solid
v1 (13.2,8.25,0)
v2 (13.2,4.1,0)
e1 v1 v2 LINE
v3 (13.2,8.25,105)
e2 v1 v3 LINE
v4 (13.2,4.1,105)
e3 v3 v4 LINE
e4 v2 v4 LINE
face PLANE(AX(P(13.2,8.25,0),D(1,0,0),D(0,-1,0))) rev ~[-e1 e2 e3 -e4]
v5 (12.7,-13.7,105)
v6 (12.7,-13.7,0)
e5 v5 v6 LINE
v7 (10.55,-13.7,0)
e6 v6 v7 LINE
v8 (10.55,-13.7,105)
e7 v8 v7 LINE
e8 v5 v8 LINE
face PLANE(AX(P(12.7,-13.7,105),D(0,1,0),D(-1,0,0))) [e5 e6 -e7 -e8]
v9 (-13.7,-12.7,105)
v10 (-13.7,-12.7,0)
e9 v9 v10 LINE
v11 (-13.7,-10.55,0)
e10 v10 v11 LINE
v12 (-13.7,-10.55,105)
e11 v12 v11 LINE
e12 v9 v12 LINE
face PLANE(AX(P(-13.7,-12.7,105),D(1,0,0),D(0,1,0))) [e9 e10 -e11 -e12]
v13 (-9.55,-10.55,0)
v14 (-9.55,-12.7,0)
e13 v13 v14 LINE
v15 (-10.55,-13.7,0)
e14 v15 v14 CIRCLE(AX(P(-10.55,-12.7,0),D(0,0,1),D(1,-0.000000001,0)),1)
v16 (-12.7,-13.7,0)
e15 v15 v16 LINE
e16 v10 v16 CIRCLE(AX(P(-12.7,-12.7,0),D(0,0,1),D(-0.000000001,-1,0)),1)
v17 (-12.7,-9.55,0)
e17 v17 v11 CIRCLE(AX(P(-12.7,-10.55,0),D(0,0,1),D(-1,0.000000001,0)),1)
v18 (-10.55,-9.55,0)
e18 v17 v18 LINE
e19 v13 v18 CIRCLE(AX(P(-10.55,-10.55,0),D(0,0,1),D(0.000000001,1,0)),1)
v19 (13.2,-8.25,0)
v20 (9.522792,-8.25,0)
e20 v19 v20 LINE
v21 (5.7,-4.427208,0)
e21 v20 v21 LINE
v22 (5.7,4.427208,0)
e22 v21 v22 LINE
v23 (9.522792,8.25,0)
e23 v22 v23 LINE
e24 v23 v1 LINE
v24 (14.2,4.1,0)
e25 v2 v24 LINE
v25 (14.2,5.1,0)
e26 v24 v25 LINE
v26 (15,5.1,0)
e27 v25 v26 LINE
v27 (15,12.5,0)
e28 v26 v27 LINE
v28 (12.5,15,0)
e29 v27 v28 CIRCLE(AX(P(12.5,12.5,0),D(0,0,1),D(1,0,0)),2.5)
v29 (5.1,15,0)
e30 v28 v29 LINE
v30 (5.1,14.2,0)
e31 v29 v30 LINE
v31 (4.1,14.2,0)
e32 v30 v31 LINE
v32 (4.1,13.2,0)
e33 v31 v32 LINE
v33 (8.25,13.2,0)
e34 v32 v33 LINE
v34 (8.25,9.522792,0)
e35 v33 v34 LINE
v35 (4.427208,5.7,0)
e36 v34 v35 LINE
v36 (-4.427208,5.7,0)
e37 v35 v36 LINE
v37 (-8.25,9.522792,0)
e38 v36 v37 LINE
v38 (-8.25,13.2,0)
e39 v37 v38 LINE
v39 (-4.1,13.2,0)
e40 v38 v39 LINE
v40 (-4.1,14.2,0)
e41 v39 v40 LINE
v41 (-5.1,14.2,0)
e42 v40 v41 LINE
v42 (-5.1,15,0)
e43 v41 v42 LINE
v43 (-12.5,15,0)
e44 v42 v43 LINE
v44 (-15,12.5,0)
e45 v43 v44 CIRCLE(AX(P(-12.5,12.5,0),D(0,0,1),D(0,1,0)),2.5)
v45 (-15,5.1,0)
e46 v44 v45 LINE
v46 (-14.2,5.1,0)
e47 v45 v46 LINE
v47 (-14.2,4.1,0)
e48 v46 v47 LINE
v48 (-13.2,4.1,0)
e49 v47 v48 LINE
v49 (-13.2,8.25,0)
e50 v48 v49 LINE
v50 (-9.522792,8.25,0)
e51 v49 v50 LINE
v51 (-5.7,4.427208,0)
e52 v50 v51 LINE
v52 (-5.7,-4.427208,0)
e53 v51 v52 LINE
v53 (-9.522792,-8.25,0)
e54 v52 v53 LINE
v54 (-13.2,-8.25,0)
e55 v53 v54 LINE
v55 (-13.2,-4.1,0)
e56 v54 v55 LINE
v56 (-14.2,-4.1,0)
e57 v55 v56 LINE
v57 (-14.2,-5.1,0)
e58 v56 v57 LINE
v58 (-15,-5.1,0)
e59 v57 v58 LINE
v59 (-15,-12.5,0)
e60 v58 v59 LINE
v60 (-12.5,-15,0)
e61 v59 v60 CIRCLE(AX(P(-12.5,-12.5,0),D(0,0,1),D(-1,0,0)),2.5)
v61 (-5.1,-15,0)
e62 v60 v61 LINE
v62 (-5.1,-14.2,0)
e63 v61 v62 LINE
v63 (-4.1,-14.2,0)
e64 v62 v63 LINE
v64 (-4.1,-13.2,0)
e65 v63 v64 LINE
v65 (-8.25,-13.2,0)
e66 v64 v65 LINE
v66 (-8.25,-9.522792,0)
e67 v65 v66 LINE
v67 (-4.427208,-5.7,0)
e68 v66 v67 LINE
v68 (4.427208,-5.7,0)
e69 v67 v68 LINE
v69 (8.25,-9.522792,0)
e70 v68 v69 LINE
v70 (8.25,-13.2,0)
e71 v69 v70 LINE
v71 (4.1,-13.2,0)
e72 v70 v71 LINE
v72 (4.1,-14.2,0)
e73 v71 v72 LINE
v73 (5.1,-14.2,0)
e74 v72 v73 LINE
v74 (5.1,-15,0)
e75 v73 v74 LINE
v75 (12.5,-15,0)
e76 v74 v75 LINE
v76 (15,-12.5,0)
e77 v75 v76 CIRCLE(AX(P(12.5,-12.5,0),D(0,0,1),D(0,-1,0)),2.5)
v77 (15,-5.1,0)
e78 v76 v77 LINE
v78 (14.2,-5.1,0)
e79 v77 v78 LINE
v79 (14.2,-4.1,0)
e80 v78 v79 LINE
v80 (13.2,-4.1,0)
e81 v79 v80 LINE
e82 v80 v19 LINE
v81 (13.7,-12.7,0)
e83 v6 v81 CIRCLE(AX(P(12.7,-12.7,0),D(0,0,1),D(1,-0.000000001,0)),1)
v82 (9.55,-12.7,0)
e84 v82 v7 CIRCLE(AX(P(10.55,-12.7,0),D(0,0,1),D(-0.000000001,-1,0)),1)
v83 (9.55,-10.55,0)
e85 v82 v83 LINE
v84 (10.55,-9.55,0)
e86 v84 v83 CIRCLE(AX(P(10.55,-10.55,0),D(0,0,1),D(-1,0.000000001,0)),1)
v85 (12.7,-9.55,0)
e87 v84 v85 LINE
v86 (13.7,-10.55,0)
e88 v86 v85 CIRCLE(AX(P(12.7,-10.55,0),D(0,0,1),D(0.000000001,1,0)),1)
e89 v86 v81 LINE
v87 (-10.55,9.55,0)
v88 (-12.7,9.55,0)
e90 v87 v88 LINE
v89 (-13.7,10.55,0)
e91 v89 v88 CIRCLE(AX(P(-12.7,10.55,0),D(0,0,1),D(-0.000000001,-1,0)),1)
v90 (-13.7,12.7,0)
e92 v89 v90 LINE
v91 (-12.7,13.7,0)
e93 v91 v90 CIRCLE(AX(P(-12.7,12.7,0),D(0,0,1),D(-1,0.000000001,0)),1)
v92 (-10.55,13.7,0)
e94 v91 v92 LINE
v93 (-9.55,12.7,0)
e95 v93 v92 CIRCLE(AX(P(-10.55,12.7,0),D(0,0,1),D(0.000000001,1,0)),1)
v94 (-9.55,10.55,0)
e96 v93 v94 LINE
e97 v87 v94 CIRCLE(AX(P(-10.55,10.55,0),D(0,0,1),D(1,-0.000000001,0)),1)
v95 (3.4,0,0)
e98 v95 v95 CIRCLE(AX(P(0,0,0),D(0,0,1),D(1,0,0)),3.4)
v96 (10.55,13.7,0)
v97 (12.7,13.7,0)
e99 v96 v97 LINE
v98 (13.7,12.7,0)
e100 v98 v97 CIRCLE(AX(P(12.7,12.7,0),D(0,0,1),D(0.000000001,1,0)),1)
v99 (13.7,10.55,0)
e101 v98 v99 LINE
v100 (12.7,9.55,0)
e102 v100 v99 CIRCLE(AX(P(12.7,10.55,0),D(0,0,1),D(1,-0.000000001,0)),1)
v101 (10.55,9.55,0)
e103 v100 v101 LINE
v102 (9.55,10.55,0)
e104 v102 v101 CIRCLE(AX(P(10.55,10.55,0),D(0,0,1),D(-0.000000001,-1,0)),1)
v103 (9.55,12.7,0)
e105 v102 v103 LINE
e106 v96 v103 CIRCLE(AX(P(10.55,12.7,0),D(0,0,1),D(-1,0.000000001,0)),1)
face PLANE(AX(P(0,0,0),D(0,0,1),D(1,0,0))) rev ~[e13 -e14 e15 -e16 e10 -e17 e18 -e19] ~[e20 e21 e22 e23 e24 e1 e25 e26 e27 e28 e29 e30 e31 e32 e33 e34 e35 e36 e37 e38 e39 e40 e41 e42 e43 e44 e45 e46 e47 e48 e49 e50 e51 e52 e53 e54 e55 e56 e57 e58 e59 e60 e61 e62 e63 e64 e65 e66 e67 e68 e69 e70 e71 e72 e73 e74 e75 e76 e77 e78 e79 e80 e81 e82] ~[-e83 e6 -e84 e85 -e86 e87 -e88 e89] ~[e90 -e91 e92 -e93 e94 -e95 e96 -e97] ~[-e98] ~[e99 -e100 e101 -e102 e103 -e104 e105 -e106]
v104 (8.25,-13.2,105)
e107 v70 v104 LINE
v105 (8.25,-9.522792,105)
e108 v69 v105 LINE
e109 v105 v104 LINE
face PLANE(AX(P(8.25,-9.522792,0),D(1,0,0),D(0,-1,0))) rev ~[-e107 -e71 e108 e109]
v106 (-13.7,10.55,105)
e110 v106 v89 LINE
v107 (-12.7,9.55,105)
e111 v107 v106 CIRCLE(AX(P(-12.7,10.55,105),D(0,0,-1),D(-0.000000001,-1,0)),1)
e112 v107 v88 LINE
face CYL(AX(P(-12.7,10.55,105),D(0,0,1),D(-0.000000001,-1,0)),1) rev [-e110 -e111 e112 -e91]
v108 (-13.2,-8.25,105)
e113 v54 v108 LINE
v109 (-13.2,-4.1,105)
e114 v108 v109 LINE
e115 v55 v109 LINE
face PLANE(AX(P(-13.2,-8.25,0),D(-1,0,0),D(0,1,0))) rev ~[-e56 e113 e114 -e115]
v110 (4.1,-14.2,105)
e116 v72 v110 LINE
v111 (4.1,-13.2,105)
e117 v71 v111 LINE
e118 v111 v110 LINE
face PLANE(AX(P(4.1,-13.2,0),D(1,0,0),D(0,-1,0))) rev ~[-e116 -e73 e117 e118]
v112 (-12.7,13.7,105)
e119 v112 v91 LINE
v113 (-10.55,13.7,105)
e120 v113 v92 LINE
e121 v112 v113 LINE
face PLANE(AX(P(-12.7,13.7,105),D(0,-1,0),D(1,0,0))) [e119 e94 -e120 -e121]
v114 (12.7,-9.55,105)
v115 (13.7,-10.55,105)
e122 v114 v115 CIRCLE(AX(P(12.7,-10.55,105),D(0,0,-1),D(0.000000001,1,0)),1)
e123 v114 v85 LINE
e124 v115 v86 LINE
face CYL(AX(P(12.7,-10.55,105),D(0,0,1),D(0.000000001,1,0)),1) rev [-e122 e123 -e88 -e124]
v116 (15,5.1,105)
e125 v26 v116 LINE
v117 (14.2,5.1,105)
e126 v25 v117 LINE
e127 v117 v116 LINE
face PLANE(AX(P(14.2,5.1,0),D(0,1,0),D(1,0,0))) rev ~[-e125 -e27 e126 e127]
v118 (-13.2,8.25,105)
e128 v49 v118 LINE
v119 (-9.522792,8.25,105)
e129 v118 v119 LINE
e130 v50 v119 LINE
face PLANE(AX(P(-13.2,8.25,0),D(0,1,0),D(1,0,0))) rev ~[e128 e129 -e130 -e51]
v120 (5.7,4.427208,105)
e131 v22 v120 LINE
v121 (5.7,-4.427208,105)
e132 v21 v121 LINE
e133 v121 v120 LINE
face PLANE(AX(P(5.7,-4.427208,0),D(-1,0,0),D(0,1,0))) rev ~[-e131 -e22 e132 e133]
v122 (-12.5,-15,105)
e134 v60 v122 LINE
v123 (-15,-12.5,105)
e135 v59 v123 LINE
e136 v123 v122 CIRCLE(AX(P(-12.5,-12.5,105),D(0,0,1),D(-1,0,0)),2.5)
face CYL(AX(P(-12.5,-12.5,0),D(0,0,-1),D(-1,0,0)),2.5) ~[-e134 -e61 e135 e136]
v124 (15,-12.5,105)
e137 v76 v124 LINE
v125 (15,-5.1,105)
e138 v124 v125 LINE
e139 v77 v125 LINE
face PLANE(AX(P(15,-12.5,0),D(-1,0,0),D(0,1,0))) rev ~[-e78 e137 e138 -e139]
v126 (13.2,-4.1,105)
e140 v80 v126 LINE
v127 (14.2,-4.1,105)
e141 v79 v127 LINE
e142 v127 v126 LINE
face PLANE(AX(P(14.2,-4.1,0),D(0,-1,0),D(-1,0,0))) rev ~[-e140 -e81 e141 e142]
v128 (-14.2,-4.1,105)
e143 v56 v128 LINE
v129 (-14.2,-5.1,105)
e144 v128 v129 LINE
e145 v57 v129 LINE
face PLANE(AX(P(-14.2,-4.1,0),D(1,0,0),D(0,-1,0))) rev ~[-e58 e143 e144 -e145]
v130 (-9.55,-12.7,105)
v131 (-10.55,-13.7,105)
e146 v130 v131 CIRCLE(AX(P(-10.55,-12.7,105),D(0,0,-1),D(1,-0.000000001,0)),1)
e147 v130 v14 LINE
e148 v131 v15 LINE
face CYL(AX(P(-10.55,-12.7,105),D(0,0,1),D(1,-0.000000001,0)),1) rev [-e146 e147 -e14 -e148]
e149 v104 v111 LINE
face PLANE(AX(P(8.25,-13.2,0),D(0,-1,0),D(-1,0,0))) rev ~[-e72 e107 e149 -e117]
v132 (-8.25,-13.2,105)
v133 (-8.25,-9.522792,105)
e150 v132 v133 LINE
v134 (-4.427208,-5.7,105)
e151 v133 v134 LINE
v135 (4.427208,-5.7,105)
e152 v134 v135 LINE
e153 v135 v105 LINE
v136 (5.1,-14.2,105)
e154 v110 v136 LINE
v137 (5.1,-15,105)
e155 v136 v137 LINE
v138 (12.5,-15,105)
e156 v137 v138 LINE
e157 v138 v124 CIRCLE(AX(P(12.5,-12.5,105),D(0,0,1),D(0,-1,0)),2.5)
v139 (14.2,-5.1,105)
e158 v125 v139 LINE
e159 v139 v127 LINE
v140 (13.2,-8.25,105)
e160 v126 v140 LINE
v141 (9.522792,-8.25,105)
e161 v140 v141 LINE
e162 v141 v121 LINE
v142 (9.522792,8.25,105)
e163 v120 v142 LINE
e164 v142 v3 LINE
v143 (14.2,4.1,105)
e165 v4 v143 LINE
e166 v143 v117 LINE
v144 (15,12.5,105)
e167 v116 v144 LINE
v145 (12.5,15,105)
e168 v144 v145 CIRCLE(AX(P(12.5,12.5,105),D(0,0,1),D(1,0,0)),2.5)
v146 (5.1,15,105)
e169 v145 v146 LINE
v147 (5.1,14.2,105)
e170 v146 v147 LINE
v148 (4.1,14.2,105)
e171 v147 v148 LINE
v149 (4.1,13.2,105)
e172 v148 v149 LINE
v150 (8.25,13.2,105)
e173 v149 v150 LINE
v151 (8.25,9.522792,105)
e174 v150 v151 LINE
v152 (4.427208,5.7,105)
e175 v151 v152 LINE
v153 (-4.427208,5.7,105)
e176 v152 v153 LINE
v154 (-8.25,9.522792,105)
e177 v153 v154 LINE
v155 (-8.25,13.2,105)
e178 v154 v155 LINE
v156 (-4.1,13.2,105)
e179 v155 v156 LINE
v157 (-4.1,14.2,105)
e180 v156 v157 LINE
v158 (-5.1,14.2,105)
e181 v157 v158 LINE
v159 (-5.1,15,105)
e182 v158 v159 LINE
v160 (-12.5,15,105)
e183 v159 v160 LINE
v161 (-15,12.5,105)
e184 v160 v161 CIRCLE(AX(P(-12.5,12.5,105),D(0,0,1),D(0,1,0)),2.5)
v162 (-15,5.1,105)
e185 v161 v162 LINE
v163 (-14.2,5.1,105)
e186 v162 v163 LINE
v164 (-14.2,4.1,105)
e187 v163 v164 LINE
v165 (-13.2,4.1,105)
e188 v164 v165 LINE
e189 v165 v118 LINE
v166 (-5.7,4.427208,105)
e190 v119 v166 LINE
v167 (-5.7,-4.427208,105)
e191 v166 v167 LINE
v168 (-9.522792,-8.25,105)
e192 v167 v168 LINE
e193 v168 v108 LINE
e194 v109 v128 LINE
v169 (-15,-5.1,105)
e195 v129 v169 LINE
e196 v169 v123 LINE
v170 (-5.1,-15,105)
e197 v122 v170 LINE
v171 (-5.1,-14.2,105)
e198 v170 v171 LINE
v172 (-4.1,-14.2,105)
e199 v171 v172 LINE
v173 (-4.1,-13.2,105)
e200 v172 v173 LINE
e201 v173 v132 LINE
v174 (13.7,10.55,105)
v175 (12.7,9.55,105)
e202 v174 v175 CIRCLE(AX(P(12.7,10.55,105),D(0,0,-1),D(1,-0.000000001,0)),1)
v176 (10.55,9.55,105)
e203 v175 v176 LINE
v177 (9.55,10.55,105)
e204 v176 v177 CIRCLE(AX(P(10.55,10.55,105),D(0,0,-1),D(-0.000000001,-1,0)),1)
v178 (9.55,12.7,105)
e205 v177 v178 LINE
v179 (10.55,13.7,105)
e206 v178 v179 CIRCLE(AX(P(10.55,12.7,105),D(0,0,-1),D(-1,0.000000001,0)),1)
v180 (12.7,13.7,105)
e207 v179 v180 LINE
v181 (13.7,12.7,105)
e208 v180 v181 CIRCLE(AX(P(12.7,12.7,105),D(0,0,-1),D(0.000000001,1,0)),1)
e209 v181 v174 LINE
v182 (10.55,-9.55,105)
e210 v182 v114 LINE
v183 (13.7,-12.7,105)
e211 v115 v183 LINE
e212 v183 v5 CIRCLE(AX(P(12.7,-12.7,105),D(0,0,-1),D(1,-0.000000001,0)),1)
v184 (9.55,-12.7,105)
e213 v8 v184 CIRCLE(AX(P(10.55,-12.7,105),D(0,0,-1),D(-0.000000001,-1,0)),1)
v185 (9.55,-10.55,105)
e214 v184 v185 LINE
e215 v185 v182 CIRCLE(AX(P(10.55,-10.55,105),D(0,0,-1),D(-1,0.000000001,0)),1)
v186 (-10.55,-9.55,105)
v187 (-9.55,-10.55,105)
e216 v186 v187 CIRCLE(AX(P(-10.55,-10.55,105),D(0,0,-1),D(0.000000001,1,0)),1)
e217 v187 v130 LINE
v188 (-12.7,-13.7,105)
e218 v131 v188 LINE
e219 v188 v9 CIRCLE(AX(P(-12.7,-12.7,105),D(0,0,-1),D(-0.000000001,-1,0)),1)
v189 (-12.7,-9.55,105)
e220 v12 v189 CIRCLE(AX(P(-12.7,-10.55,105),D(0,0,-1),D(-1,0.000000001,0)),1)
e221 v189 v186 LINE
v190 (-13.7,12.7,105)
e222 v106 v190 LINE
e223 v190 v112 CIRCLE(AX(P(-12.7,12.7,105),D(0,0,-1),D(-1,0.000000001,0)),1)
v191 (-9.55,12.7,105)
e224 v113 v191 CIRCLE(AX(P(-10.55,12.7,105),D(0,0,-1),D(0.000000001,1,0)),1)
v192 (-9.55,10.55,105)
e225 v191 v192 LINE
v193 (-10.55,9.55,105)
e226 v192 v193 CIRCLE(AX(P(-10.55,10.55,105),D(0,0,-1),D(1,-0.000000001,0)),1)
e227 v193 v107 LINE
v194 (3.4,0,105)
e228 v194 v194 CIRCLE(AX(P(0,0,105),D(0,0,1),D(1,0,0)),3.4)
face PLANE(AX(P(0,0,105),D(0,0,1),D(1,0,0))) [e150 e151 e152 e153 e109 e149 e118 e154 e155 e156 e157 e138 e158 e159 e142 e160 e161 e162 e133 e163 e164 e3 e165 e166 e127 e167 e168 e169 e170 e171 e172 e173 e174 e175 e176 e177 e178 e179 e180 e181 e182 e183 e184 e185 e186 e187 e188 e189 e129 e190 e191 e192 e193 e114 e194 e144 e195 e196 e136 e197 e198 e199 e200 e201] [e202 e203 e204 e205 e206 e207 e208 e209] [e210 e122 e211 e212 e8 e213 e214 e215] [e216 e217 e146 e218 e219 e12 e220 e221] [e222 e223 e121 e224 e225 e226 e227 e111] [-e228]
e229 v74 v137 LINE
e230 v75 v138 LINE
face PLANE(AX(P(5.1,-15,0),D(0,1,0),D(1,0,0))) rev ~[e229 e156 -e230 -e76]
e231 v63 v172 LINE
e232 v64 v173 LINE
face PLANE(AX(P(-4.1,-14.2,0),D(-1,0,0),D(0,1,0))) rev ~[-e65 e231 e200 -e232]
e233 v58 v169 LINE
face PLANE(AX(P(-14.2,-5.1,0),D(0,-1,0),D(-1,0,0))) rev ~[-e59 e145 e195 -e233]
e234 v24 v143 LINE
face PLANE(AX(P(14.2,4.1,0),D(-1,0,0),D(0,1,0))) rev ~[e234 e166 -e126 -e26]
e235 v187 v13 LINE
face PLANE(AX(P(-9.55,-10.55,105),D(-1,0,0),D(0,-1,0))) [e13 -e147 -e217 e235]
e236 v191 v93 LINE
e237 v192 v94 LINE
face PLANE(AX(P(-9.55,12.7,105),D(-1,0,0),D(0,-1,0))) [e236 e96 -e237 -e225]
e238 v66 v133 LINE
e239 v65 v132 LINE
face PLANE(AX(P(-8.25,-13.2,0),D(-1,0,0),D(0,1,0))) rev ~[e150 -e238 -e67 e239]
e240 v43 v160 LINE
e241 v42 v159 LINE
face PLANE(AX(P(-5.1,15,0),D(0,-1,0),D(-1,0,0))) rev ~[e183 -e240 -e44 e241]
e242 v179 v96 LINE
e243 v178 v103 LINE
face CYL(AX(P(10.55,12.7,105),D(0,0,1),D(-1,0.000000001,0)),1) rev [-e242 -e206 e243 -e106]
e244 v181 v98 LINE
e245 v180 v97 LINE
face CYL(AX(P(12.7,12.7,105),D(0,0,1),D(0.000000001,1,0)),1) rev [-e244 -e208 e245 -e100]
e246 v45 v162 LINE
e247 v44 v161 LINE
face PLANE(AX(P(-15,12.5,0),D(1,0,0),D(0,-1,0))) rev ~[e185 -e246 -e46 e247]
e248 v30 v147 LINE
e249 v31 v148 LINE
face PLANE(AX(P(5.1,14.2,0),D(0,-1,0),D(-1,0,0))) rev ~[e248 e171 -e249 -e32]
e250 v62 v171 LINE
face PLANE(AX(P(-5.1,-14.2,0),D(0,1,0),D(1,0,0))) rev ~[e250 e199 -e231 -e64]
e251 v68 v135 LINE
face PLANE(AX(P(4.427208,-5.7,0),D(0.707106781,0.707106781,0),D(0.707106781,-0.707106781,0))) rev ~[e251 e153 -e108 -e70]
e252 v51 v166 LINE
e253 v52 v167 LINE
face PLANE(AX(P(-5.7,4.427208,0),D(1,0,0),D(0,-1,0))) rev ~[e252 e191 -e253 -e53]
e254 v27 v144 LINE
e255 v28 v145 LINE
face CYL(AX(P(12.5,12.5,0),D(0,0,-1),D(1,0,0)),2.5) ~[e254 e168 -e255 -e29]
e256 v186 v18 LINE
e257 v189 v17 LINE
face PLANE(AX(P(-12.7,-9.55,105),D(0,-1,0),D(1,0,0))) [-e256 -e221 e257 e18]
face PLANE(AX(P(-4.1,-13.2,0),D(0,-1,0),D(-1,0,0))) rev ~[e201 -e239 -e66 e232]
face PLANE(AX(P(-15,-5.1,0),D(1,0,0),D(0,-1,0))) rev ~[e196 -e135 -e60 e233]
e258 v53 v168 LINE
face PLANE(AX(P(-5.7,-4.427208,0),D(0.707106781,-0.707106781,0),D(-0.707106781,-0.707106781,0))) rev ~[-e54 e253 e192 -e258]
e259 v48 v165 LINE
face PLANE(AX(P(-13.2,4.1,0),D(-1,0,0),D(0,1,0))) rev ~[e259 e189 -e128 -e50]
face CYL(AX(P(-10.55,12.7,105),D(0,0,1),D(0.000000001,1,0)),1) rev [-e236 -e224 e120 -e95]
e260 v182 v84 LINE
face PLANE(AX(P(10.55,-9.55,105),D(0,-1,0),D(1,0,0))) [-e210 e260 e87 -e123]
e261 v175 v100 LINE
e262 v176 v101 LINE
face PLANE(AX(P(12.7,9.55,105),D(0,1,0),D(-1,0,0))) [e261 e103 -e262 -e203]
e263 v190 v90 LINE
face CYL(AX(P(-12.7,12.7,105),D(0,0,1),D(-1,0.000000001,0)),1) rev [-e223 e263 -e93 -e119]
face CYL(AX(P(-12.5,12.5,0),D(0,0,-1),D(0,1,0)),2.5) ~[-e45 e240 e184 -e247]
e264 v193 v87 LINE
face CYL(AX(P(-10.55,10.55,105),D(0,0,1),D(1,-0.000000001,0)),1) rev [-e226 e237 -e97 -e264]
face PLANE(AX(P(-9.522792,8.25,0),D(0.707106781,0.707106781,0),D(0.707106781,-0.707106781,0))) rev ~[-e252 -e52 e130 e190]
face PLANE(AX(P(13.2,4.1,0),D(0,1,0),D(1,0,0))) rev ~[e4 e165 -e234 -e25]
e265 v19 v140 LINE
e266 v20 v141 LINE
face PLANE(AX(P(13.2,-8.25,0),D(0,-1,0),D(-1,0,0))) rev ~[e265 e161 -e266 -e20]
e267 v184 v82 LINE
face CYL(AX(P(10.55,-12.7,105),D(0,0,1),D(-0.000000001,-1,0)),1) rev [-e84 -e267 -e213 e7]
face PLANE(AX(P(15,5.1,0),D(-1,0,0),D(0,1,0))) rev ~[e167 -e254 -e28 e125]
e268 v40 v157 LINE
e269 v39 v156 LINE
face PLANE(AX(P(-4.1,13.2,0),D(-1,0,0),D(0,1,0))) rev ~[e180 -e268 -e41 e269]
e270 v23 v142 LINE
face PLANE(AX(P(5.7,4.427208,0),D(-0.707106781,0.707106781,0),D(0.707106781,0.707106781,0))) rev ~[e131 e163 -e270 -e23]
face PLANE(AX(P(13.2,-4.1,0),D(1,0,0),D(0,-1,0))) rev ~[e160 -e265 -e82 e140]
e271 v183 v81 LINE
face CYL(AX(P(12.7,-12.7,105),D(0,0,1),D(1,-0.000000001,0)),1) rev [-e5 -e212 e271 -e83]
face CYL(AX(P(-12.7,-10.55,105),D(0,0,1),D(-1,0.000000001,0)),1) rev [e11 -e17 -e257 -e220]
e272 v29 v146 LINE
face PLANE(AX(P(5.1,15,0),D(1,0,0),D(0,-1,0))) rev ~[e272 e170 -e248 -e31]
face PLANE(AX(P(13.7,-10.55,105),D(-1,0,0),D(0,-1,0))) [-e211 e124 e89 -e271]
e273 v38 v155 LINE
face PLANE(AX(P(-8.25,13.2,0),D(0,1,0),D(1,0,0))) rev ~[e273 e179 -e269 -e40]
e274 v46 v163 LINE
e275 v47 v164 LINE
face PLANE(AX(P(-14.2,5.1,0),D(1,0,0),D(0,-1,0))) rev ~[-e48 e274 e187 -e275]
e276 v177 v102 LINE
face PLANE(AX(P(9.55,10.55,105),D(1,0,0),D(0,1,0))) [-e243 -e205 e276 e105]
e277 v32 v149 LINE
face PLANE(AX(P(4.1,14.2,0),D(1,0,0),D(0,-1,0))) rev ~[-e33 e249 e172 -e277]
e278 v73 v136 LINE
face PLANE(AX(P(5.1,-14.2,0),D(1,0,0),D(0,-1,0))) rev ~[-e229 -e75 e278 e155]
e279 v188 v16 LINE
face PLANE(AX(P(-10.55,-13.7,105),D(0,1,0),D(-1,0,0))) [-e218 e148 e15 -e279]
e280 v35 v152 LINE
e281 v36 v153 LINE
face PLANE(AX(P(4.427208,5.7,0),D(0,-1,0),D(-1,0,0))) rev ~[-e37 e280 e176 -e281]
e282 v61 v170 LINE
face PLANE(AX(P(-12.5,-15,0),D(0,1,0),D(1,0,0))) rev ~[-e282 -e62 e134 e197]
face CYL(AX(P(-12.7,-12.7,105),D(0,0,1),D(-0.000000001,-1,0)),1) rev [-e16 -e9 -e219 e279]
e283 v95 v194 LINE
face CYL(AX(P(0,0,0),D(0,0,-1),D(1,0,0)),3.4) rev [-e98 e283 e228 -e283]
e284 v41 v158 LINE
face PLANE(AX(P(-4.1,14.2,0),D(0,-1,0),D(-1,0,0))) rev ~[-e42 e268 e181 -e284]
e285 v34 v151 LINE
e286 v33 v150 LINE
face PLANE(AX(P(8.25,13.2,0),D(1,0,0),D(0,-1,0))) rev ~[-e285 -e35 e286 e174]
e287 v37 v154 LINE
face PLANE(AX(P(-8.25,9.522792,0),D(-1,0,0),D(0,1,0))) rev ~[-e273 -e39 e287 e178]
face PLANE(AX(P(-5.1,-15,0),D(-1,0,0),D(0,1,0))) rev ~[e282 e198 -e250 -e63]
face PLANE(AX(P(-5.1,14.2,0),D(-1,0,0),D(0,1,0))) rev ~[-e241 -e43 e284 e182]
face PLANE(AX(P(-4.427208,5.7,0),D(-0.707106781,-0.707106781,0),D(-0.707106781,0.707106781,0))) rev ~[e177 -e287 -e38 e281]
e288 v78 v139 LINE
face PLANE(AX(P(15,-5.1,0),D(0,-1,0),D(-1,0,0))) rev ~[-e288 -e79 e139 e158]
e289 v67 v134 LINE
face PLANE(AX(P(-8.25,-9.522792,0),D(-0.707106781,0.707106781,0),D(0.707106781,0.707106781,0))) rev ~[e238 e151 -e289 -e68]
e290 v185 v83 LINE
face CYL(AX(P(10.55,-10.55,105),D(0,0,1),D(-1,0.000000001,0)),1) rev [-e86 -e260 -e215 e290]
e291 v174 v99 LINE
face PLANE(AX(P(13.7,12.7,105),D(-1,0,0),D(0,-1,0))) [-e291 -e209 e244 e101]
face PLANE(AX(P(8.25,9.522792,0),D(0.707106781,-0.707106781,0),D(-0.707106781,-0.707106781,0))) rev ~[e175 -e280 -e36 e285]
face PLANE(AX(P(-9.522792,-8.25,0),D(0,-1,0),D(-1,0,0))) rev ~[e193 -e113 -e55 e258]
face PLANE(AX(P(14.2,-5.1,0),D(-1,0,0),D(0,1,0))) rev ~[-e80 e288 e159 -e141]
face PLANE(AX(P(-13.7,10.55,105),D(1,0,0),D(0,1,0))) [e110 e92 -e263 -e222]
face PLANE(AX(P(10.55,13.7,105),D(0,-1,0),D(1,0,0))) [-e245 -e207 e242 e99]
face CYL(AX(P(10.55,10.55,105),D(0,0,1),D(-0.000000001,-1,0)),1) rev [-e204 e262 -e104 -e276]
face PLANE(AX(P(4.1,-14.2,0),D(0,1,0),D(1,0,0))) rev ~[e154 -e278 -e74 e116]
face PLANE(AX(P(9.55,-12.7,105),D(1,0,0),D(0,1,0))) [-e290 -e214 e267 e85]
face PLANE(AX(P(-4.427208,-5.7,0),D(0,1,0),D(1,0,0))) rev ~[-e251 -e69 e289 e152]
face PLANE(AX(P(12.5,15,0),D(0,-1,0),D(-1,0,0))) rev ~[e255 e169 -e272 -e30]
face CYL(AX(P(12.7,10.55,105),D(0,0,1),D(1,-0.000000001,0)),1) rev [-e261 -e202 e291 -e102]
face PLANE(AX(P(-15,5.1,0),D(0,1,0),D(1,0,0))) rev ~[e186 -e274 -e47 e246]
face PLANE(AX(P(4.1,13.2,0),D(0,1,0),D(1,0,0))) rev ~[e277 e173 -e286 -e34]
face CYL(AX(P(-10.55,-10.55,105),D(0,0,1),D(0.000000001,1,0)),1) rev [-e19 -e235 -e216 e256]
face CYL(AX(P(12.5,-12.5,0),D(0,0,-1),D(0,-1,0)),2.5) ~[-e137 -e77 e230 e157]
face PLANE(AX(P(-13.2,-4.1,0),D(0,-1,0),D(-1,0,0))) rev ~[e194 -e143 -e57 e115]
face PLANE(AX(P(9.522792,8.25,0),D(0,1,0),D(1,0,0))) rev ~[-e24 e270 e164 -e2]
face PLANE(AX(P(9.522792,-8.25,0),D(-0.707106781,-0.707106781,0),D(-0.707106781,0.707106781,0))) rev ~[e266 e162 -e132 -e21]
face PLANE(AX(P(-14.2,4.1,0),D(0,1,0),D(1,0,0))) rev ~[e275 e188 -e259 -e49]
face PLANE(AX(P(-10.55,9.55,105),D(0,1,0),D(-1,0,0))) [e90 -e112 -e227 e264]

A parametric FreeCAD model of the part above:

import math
import FreeCAD as App
import Part
import Sketcher
from FreeCAD import Vector
Q = App.Units.Quantity

doc = App.newDocument("Part")
params = doc.addObject("Spreadsheet::Sheet", "Params")
for row, (alias, value) in enumerate([
    ("sketch1_diameter", "6.8 mm"),
    ("sketch1_radius", "2.5 mm"),
    ("sketch1_width", "1 mm"),
    ("sketch1_width2", "7.4 mm"),
    ("sketch1_width3", "0.8 mm"),
    ("pad1_length", "105 mm"),
    ("sketch2_radius", "1 mm"),
    ("sketch2_width", "2.15 mm"),
], start=1):
    params.set(f"A{row}", alias)
    params.set(f"B{row}", "=" + value)
    params.setAlias(f"B{row}", alias)

body = doc.addObject("PartDesign::Body", "Body")

sketch1 = body.newObject("Sketcher::SketchObject", "Sketch")
sketch1.AttachmentSupport = (doc.getObject("XY_Plane"), [""])
sketch1.MapMode = "FlatFace"
sketch1.addGeometry([
    Part.LineSegment(Vector(-5.1, 14.2, 0), Vector(-5.1, 15, 0)),
    Part.LineSegment(Vector(-5.1, 15, 0), Vector(-12.5, 15, 0)),
    Part.ArcOfCircle(Part.Circle(Vector(-12.5, 12.5, 0), Vector(0, 0, 1), 2.5), math.radians(90), math.radians(180)),
    Part.LineSegment(Vector(-15, 12.5, 0), Vector(-15, 5.1, 0)),
    Part.LineSegment(Vector(-15, 5.1, 0), Vector(-14.2, 5.1, 0)),
    Part.LineSegment(Vector(-14.2, 5.1, 0), Vector(-14.2, 4.1, 0)),
    Part.LineSegment(Vector(-14.2, 4.1, 0), Vector(-13.2, 4.1, 0)),
    Part.LineSegment(Vector(-13.2, 4.1, 0), Vector(-13.2, 8.25, 0)),
    Part.LineSegment(Vector(-13.2, 8.25, 0), Vector(-9.522792, 8.25, 0)),
    Part.LineSegment(Vector(-9.522792, 8.25, 0), Vector(-5.7, 4.427208, 0)),
    Part.LineSegment(Vector(-5.7, 4.427208, 0), Vector(-5.7, -4.427208, 0)),
    Part.LineSegment(Vector(-5.7, -4.427208, 0), Vector(-9.522792, -8.25, 0)),
    Part.LineSegment(Vector(-9.522792, -8.25, 0), Vector(-13.2, -8.25, 0)),
    Part.LineSegment(Vector(-13.2, -8.25, 0), Vector(-13.2, -4.1, 0)),
    Part.LineSegment(Vector(-13.2, -4.1, 0), Vector(-14.2, -4.1, 0)),
    Part.LineSegment(Vector(-14.2, -4.1, 0), Vector(-14.2, -5.1, 0)),
    Part.LineSegment(Vector(-14.2, -5.1, 0), Vector(-15, -5.1, 0)),
    Part.LineSegment(Vector(-15, -5.1, 0), Vector(-15, -12.5, 0)),
    Part.ArcOfCircle(Part.Circle(Vector(-12.5, -12.5, 0), Vector(0, 0, 1), 2.5), math.radians(180), math.radians(270)),
    Part.LineSegment(Vector(-12.5, -15, 0), Vector(-5.1, -15, 0)),
    Part.LineSegment(Vector(-5.1, -15, 0), Vector(-5.1, -14.2, 0)),
    Part.LineSegment(Vector(-5.1, -14.2, 0), Vector(-4.1, -14.2, 0)),
    Part.LineSegment(Vector(-4.1, -14.2, 0), Vector(-4.1, -13.2, 0)),
    Part.LineSegment(Vector(-4.1, -13.2, 0), Vector(-8.25, -13.2, 0)),
    Part.LineSegment(Vector(-8.25, -13.2, 0), Vector(-8.25, -9.522792, 0)),
    Part.LineSegment(Vector(-8.25, -9.522792, 0), Vector(-4.427208, -5.7, 0)),
    Part.LineSegment(Vector(-4.427208, -5.7, 0), Vector(4.427208, -5.7, 0)),
    Part.LineSegment(Vector(4.427208, -5.7, 0), Vector(8.25, -9.522792, 0)),
    Part.LineSegment(Vector(8.25, -9.522792, 0), Vector(8.25, -13.2, 0)),
    Part.LineSegment(Vector(8.25, -13.2, 0), Vector(4.1, -13.2, 0)),
    Part.LineSegment(Vector(4.1, -13.2, 0), Vector(4.1, -14.2, 0)),
    Part.LineSegment(Vector(4.1, -14.2, 0), Vector(5.1, -14.2, 0)),
    Part.LineSegment(Vector(5.1, -14.2, 0), Vector(5.1, -15, 0)),
    Part.LineSegment(Vector(5.1, -15, 0), Vector(12.5, -15, 0)),
    Part.ArcOfCircle(Part.Circle(Vector(12.5, -12.5, 0), Vector(0, 0, 1), 2.5), math.radians(-90), math.radians(0)),
    Part.LineSegment(Vector(15, -12.5, 0), Vector(15, -5.1, 0)),
    Part.LineSegment(Vector(15, -5.1, 0), Vector(14.2, -5.1, 0)),
    Part.LineSegment(Vector(14.2, -5.1, 0), Vector(14.2, -4.1, 0)),
    Part.LineSegment(Vector(14.2, -4.1, 0), Vector(13.2, -4.1, 0)),
    Part.LineSegment(Vector(13.2, -4.1, 0), Vector(13.2, -8.25, 0)),
    Part.LineSegment(Vector(13.2, -8.25, 0), Vector(9.522792, -8.25, 0)),
    Part.LineSegment(Vector(9.522792, -8.25, 0), Vector(5.7, -4.427208, 0)),
    Part.LineSegment(Vector(5.7, -4.427208, 0), Vector(5.7, 4.427208, 0)),
    Part.LineSegment(Vector(5.7, 4.427208, 0), Vector(9.522792, 8.25, 0)),
    Part.LineSegment(Vector(9.522792, 8.25, 0), Vector(13.2, 8.25, 0)),
    Part.LineSegment(Vector(13.2, 8.25, 0), Vector(13.2, 4.1, 0)),
    Part.LineSegment(Vector(13.2, 4.1, 0), Vector(14.2, 4.1, 0)),
    Part.LineSegment(Vector(14.2, 4.1, 0), Vector(14.2, 5.1, 0)),
    Part.LineSegment(Vector(14.2, 5.1, 0), Vector(15, 5.1, 0)),
    Part.LineSegment(Vector(15, 5.1, 0), Vector(15, 12.5, 0)),
    Part.ArcOfCircle(Part.Circle(Vector(12.5, 12.5, 0), Vector(0, 0, 1), 2.5), math.radians(0), math.radians(90)),
    Part.LineSegment(Vector(12.5, 15, 0), Vector(5.1, 15, 0)),
    Part.LineSegment(Vector(5.1, 15, 0), Vector(5.1, 14.2, 0)),
    Part.LineSegment(Vector(5.1, 14.2, 0), Vector(4.1, 14.2, 0)),
    Part.LineSegment(Vector(4.1, 14.2, 0), Vector(4.1, 13.2, 0)),
    Part.LineSegment(Vector(4.1, 13.2, 0), Vector(8.25, 13.2, 0)),
    Part.LineSegment(Vector(8.25, 13.2, 0), Vector(8.25, 9.522792, 0)),
    Part.LineSegment(Vector(8.25, 9.522792, 0), Vector(4.427208, 5.7, 0)),
    Part.LineSegment(Vector(4.427208, 5.7, 0), Vector(-4.427208, 5.7, 0)),
    Part.LineSegment(Vector(-4.427208, 5.7, 0), Vector(-8.25, 9.522792, 0)),
    Part.LineSegment(Vector(-8.25, 9.522792, 0), Vector(-8.25, 13.2, 0)),
    Part.LineSegment(Vector(-8.25, 13.2, 0), Vector(-4.1, 13.2, 0)),
    Part.LineSegment(Vector(-4.1, 13.2, 0), Vector(-4.1, 14.2, 0)),
    Part.LineSegment(Vector(-4.1, 14.2, 0), Vector(-5.1, 14.2, 0)),
    Part.Circle(Vector(0, 0, 0), Vector(0, 0, 1), 3.4),
], False)
sketch1.addConstraint([
    Sketcher.Constraint("Coincident", 0, 2, 1, 1),
    Sketcher.Constraint("Tangent", 1, 2, 2, 1),
    Sketcher.Constraint("Tangent", 2, 2, 3, 1),
    Sketcher.Constraint("Coincident", 3, 2, 4, 1),
    Sketcher.Constraint("Coincident", 4, 2, 5, 1),
    Sketcher.Constraint("Coincident", 5, 2, 6, 1),
    Sketcher.Constraint("Coincident", 6, 2, 7, 1),
    Sketcher.Constraint("Coincident", 7, 2, 8, 1),
    Sketcher.Constraint("Coincident", 8, 2, 9, 1),
    Sketcher.Constraint("Coincident", 9, 2, 10, 1),
    Sketcher.Constraint("Coincident", 10, 2, 11, 1),
    Sketcher.Constraint("Coincident", 11, 2, 12, 1),
    Sketcher.Constraint("Coincident", 12, 2, 13, 1),
    Sketcher.Constraint("Coincident", 13, 2, 14, 1),
    Sketcher.Constraint("Coincident", 14, 2, 15, 1),
    Sketcher.Constraint("Coincident", 15, 2, 16, 1),
    Sketcher.Constraint("Coincident", 16, 2, 17, 1),
    Sketcher.Constraint("Tangent", 17, 2, 18, 1),
    Sketcher.Constraint("Tangent", 18, 2, 19, 1),
    Sketcher.Constraint("Coincident", 19, 2, 20, 1),
    Sketcher.Constraint("Coincident", 20, 2, 21, 1),
    Sketcher.Constraint("Coincident", 21, 2, 22, 1),
    Sketcher.Constraint("Coincident", 22, 2, 23, 1),
    Sketcher.Constraint("Coincident", 23, 2, 24, 1),
    Sketcher.Constraint("Coincident", 24, 2, 25, 1),
    Sketcher.Constraint("Coincident", 25, 2, 26, 1),
    Sketcher.Constraint("Coincident", 26, 2, 27, 1),
    Sketcher.Constraint("Coincident", 27, 2, 28, 1),
    Sketcher.Constraint("Coincident", 28, 2, 29, 1),
    Sketcher.Constraint("Coincident", 29, 2, 30, 1),
    Sketcher.Constraint("Coincident", 30, 2, 31, 1),
    Sketcher.Constraint("Coincident", 31, 2, 32, 1),
    Sketcher.Constraint("Coincident", 32, 2, 33, 1),
    Sketcher.Constraint("Tangent", 33, 2, 34, 1),
    Sketcher.Constraint("Tangent", 34, 2, 35, 1),
    Sketcher.Constraint("Coincident", 35, 2, 36, 1),
    Sketcher.Constraint("Coincident", 36, 2, 37, 1),
    Sketcher.Constraint("Coincident", 37, 2, 38, 1),
    Sketcher.Constraint("Coincident", 38, 2, 39, 1),
    Sketcher.Constraint("Coincident", 39, 2, 40, 1),
    Sketcher.Constraint("Coincident", 40, 2, 41, 1),
    Sketcher.Constraint("Coincident", 41, 2, 42, 1),
    Sketcher.Constraint("Coincident", 42, 2, 43, 1),
    Sketcher.Constraint("Coincident", 43, 2, 44, 1),
    Sketcher.Constraint("Coincident", 44, 2, 45, 1),
    Sketcher.Constraint("Coincident", 45, 2, 46, 1),
    Sketcher.Constraint("Coincident", 46, 2, 47, 1),
    Sketcher.Constraint("Coincident", 47, 2, 48, 1),
    Sketcher.Constraint("Coincident", 48, 2, 49, 1),
    Sketcher.Constraint("Tangent", 49, 2, 50, 1),
    Sketcher.Constraint("Tangent", 50, 2, 51, 1),
    Sketcher.Constraint("Coincident", 51, 2, 52, 1),
    Sketcher.Constraint("Coincident", 52, 2, 53, 1),
    Sketcher.Constraint("Coincident", 53, 2, 54, 1),
    Sketcher.Constraint("Coincident", 54, 2, 55, 1),
    Sketcher.Constraint("Coincident", 55, 2, 56, 1),
    Sketcher.Constraint("Coincident", 56, 2, 57, 1),
    Sketcher.Constraint("Coincident", 57, 2, 58, 1),
    Sketcher.Constraint("Coincident", 58, 2, 59, 1),
    Sketcher.Constraint("Coincident", 59, 2, 60, 1),
    Sketcher.Constraint("Coincident", 60, 2, 61, 1),
    Sketcher.Constraint("Coincident", 61, 2, 62, 1),
    Sketcher.Constraint("Coincident", 62, 2, 63, 1),
    Sketcher.Constraint("Coincident", 63, 2, 0, 1),
    Sketcher.Constraint("Vertical", 0),
    Sketcher.Constraint("Horizontal", 1),
    Sketcher.Constraint("Vertical", 3),
    Sketcher.Constraint("Horizontal", 4),
    Sketcher.Constraint("Vertical", 5),
    Sketcher.Constraint("Horizontal", 6),
    Sketcher.Constraint("Vertical", 7),
    Sketcher.Constraint("Horizontal", 8),
    Sketcher.Constraint("Vertical", 10),
    Sketcher.Constraint("Horizontal", 12),
    Sketcher.Constraint("Vertical", 13),
    Sketcher.Constraint("Horizontal", 14),
    Sketcher.Constraint("Vertical", 15),
    Sketcher.Constraint("Horizontal", 16),
    Sketcher.Constraint("Vertical", 17),
    Sketcher.Constraint("Horizontal", 19),
    Sketcher.Constraint("Vertical", 20),
    Sketcher.Constraint("Horizontal", 21),
    Sketcher.Constraint("Vertical", 22),
    Sketcher.Constraint("Horizontal", 23),
    Sketcher.Constraint("Vertical", 24),
    Sketcher.Constraint("Horizontal", 26),
    Sketcher.Constraint("Vertical", 28),
    Sketcher.Constraint("Horizontal", 29),
    Sketcher.Constraint("Vertical", 30),
    Sketcher.Constraint("Horizontal", 31),
    Sketcher.Constraint("Vertical", 32),
    Sketcher.Constraint("Horizontal", 33),
    Sketcher.Constraint("Vertical", 35),
    Sketcher.Constraint("Horizontal", 36),
    Sketcher.Constraint("Vertical", 37),
    Sketcher.Constraint("Horizontal", 38),
    Sketcher.Constraint("Vertical", 39),
    Sketcher.Constraint("Horizontal", 40),
    Sketcher.Constraint("Vertical", 42),
    Sketcher.Constraint("Horizontal", 44),
    Sketcher.Constraint("Vertical", 45),
    Sketcher.Constraint("Horizontal", 46),
    Sketcher.Constraint("Vertical", 47),
    Sketcher.Constraint("Horizontal", 48),
    Sketcher.Constraint("Vertical", 49),
    Sketcher.Constraint("Horizontal", 51),
    Sketcher.Constraint("Vertical", 52),
    Sketcher.Constraint("Horizontal", 53),
    Sketcher.Constraint("Vertical", 54),
    Sketcher.Constraint("Horizontal", 55),
    Sketcher.Constraint("Vertical", 56),
    Sketcher.Constraint("Horizontal", 58),
    Sketcher.Constraint("Vertical", 60),
    Sketcher.Constraint("Horizontal", 61),
    Sketcher.Constraint("Vertical", 62),
    Sketcher.Constraint("Horizontal", 63),
    Sketcher.Constraint("Coincident", 64, 3, -1, 1),
    Sketcher.Constraint("Equal", 2, 18),
    Sketcher.Constraint("Equal", 18, 34),
    Sketcher.Constraint("Equal", 34, 50),
    Sketcher.Constraint("Symmetric", 2, 3, 34, 3, -1, 1),
    Sketcher.Constraint("Symmetric", 18, 3, 50, 3, -1, 1),
    Sketcher.Constraint("Symmetric", 4, 2, 36, 2, -1, 1),
    Sketcher.Constraint("Symmetric", 6, 2, 38, 2, -1, 1),
    Sketcher.Constraint("Symmetric", 8, 2, 40, 2, -1, 1),
    Sketcher.Constraint("Symmetric", 9, 2, 41, 2, -1, 1),
    Sketcher.Constraint("Symmetric", 11, 2, 43, 2, -1, 1),
    Sketcher.Constraint("Symmetric", 13, 2, 45, 2, -1, 1),
    Sketcher.Constraint("Symmetric", 15, 2, 47, 2, -1, 1),
    Sketcher.Constraint("Symmetric", 20, 2, 52, 2, -1, 1),
    Sketcher.Constraint("Symmetric", 22, 2, 54, 2, -1, 1),
    Sketcher.Constraint("Symmetric", 24, 2, 56, 2, -1, 1),
    Sketcher.Constraint("Symmetric", 25, 2, 57, 2, -1, 1),
    Sketcher.Constraint("Symmetric", 27, 2, 59, 2, -1, 1),
    Sketcher.Constraint("Symmetric", 29, 2, 61, 2, -1, 1),
    Sketcher.Constraint("Symmetric", 31, 2, 63, 2, -1, 1),
    Sketcher.Constraint("Symmetric", 18, 3, 34, 3, -2),
    Sketcher.Constraint("Symmetric", 24, 2, 27, 2, -2),
    Sketcher.Constraint("Symmetric", 22, 2, 29, 2, -2),
    Sketcher.Constraint("Symmetric", 20, 2, 31, 2, -2),
    Sketcher.Constraint("Symmetric", 15, 2, 36, 2, -2),
    Sketcher.Constraint("Symmetric", 13, 2, 38, 2, -2),
    Sketcher.Constraint("Symmetric", 11, 2, 40, 2, -2),
    Sketcher.Constraint("Perpendicular", 9, 11),
    Sketcher.Constraint("Parallel", 11, 25),
    Sketcher.Constraint("Perpendicular", 25, 27),
    Sketcher.Constraint("Perpendicular", 41, 43),
    Sketcher.Constraint("Perpendicular", 57, 59),
    Sketcher.Constraint("Horizontal", 10, 2, 41, 2),
    Sketcher.Constraint("Equal", 14, 21),
    Sketcher.Constraint("Equal", 48, 0),
    Sketcher.Constraint("Equal", 51, 3),
    Sketcher.Constraint("Equal", 63, 5),
    Sketcher.Constraint("Equal", 61, 7),
    Sketcher.Constraint("Equal", 58, 10),
    Sketcher.Constraint("Equal", 15, 22),
    Sketcher.Constraint("Equal", 44, 24),
    Sketcher.Constraint("Equal", 11, 25),
    Sketcher.Constraint("Diameter", 64, Q("6.8 mm")),
    Sketcher.Constraint("Radius", 2, Q("2.5 mm")),
    Sketcher.Constraint("DistanceX", 6, 1, 6, 2, Q("1 mm")),
    Sketcher.Constraint("DistanceX", 1, 2, 1, 1, Q("7.4 mm")),
    Sketcher.Constraint("DistanceX", 4, 1, 4, 2, Q("0.8 mm")),
    Sketcher.Constraint("DistanceY", -1, 1, 0, 2, Q("15 mm")),
    Sketcher.Constraint("DistanceX", 23, 2, 23, 1, Q("4.15 mm")),
    Sketcher.Constraint("DistanceX", 9, 2, -1, 1, Q("5.7 mm")),
    Sketcher.Constraint("DistanceX", 8, 1, 8, 2, Q("3.677208 mm")),
])
sketch1.setExpression("Constraints[158]", "Params.sketch1_diameter")
sketch1.setExpression("Constraints[159]", "Params.sketch1_radius")
sketch1.setExpression("Constraints[160]", "Params.sketch1_width")
sketch1.setExpression("Constraints[161]", "Params.sketch1_width2")
sketch1.setExpression("Constraints[162]", "Params.sketch1_width3")
pad1 = body.newObject("PartDesign::Pad", "Pad")
pad1.Profile = sketch1
pad1.setExpression("Length", "Params.pad1_length")

sketch2 = body.newObject("Sketcher::SketchObject", "Sketch001")
sketch2.AttachmentSupport = (doc.getObject("XY_Plane"), [""])
sketch2.MapMode = "FlatFace"
sketch2.AttachmentOffset = App.Placement(Vector(0, 0, 105), App.Rotation())
sketch2.addGeometry([
    Part.LineSegment(Vector(13.7, 10.55, 0), Vector(13.7, 12.7, 0)),
    Part.ArcOfCircle(Part.Circle(Vector(12.7, 12.7, 0), Vector(0, 0, 1), 1), math.radians(0), math.radians(90)),
    Part.LineSegment(Vector(12.7, 13.7, 0), Vector(10.55, 13.7, 0)),
    Part.ArcOfCircle(Part.Circle(Vector(10.55, 12.7, 0), Vector(0, 0, 1), 1), math.radians(90), math.radians(180)),
    Part.LineSegment(Vector(9.55, 12.7, 0), Vector(9.55, 10.55, 0)),
    Part.ArcOfCircle(Part.Circle(Vector(10.55, 10.55, 0), Vector(0, 0, 1), 1), math.radians(-180), math.radians(-90)),
    Part.LineSegment(Vector(10.55, 9.55, 0), Vector(12.7, 9.55, 0)),
    Part.ArcOfCircle(Part.Circle(Vector(12.7, 10.55, 0), Vector(0, 0, 1), 1), math.radians(-90), math.radians(0)),
    Part.LineSegment(Vector(-10.55, 13.7, 0), Vector(-12.7, 13.7, 0)),
    Part.ArcOfCircle(Part.Circle(Vector(-12.7, 12.7, 0), Vector(0, 0, 1), 1), math.radians(90), math.radians(180)),
    Part.LineSegment(Vector(-13.7, 12.7, 0), Vector(-13.7, 10.55, 0)),
    Part.ArcOfCircle(Part.Circle(Vector(-12.7, 10.55, 0), Vector(0, 0, 1), 1), math.radians(-180), math.radians(-90)),
    Part.LineSegment(Vector(-12.7, 9.55, 0), Vector(-10.55, 9.55, 0)),
    Part.ArcOfCircle(Part.Circle(Vector(-10.55, 10.55, 0), Vector(0, 0, 1), 1), math.radians(-90), math.radians(0)),
    Part.LineSegment(Vector(-9.55, 10.55, 0), Vector(-9.55, 12.7, 0)),
    Part.ArcOfCircle(Part.Circle(Vector(-10.55, 12.7, 0), Vector(0, 0, 1), 1), math.radians(0), math.radians(90)),
    Part.LineSegment(Vector(10.55, -13.7, 0), Vector(12.7, -13.7, 0)),
    Part.ArcOfCircle(Part.Circle(Vector(12.7, -12.7, 0), Vector(0, 0, 1), 1), math.radians(-90), math.radians(0)),
    Part.LineSegment(Vector(13.7, -12.7, 0), Vector(13.7, -10.55, 0)),
    Part.ArcOfCircle(Part.Circle(Vector(12.7, -10.55, 0), Vector(0, 0, 1), 1), math.radians(0), math.radians(90)),
    Part.LineSegment(Vector(12.7, -9.55, 0), Vector(10.55, -9.55, 0)),
    Part.ArcOfCircle(Part.Circle(Vector(10.55, -10.55, 0), Vector(0, 0, 1), 1), math.radians(90), math.radians(180)),
    Part.LineSegment(Vector(9.55, -10.55, 0), Vector(9.55, -12.7, 0)),
    Part.ArcOfCircle(Part.Circle(Vector(10.55, -12.7, 0), Vector(0, 0, 1), 1), math.radians(-180), math.radians(-90)),
    Part.LineSegment(Vector(-13.7, -10.55, 0), Vector(-13.7, -12.7, 0)),
    Part.ArcOfCircle(Part.Circle(Vector(-12.7, -12.7, 0), Vector(0, 0, 1), 1), math.radians(-180), math.radians(-90)),
    Part.LineSegment(Vector(-12.7, -13.7, 0), Vector(-10.55, -13.7, 0)),
    Part.ArcOfCircle(Part.Circle(Vector(-10.55, -12.7, 0), Vector(0, 0, 1), 1), math.radians(-90), math.radians(0)),
    Part.LineSegment(Vector(-9.55, -12.7, 0), Vector(-9.55, -10.55, 0)),
    Part.ArcOfCircle(Part.Circle(Vector(-10.55, -10.55, 0), Vector(0, 0, 1), 1), math.radians(0), math.radians(90)),
    Part.LineSegment(Vector(-10.55, -9.55, 0), Vector(-12.7, -9.55, 0)),
    Part.ArcOfCircle(Part.Circle(Vector(-12.7, -10.55, 0), Vector(0, 0, 1), 1), math.radians(90), math.radians(180)),
], False)
sketch2.addConstraint([
    Sketcher.Constraint("Tangent", 0, 2, 1, 1),
    Sketcher.Constraint("Tangent", 1, 2, 2, 1),
    Sketcher.Constraint("Tangent", 2, 2, 3, 1),
    Sketcher.Constraint("Tangent", 3, 2, 4, 1),
    Sketcher.Constraint("Tangent", 4, 2, 5, 1),
    Sketcher.Constraint("Tangent", 5, 2, 6, 1),
    Sketcher.Constraint("Tangent", 6, 2, 7, 1),
    Sketcher.Constraint("Tangent", 7, 2, 0, 1),
    Sketcher.Constraint("Tangent", 8, 2, 9, 1),
    Sketcher.Constraint("Tangent", 9, 2, 10, 1),
    Sketcher.Constraint("Tangent", 10, 2, 11, 1),
    Sketcher.Constraint("Tangent", 11, 2, 12, 1),
    Sketcher.Constraint("Tangent", 12, 2, 13, 1),
    Sketcher.Constraint("Tangent", 13, 2, 14, 1),
    Sketcher.Constraint("Tangent", 14, 2, 15, 1),
    Sketcher.Constraint("Tangent", 15, 2, 8, 1),
    Sketcher.Constraint("Tangent", 16, 2, 17, 1),
    Sketcher.Constraint("Tangent", 17, 2, 18, 1),
    Sketcher.Constraint("Tangent", 18, 2, 19, 1),
    Sketcher.Constraint("Tangent", 19, 2, 20, 1),
    Sketcher.Constraint("Tangent", 20, 2, 21, 1),
    Sketcher.Constraint("Tangent", 21, 2, 22, 1),
    Sketcher.Constraint("Tangent", 22, 2, 23, 1),
    Sketcher.Constraint("Tangent", 23, 2, 16, 1),
    Sketcher.Constraint("Tangent", 24, 2, 25, 1),
    Sketcher.Constraint("Tangent", 25, 2, 26, 1),
    Sketcher.Constraint("Tangent", 26, 2, 27, 1),
    Sketcher.Constraint("Tangent", 27, 2, 28, 1),
    Sketcher.Constraint("Tangent", 28, 2, 29, 1),
    Sketcher.Constraint("Tangent", 29, 2, 30, 1),
    Sketcher.Constraint("Tangent", 30, 2, 31, 1),
    Sketcher.Constraint("Tangent", 31, 2, 24, 1),
    Sketcher.Constraint("Vertical", 0),
    Sketcher.Constraint("Horizontal", 2),
    Sketcher.Constraint("Vertical", 4),
    Sketcher.Constraint("Horizontal", 6),
    Sketcher.Constraint("Horizontal", 8),
    Sketcher.Constraint("Vertical", 10),
    Sketcher.Constraint("Horizontal", 12),
    Sketcher.Constraint("Vertical", 14),
    Sketcher.Constraint("Horizontal", 16),
    Sketcher.Constraint("Vertical", 18),
    Sketcher.Constraint("Horizontal", 20),
    Sketcher.Constraint("Vertical", 22),
    Sketcher.Constraint("Vertical", 24),
    Sketcher.Constraint("Horizontal", 26),
    Sketcher.Constraint("Vertical", 28),
    Sketcher.Constraint("Horizontal", 30),
    Sketcher.Constraint("Equal", 1, 3),
    Sketcher.Constraint("Equal", 3, 5),
    Sketcher.Constraint("Equal", 5, 7),
    Sketcher.Constraint("Equal", 7, 9),
    Sketcher.Constraint("Equal", 9, 11),
    Sketcher.Constraint("Equal", 11, 13),
    Sketcher.Constraint("Equal", 13, 15),
    Sketcher.Constraint("Equal", 15, 17),
    Sketcher.Constraint("Equal", 17, 19),
    Sketcher.Constraint("Equal", 19, 21),
    Sketcher.Constraint("Equal", 21, 23),
    Sketcher.Constraint("Equal", 23, 25),
    Sketcher.Constraint("Equal", 25, 27),
    Sketcher.Constraint("Equal", 27, 29),
    Sketcher.Constraint("Equal", 29, 31),
    Sketcher.Constraint("Symmetric", 9, 3, 17, 3, -1, 1),
    Sketcher.Constraint("Symmetric", 13, 3, 21, 3, -1, 1),
    Sketcher.Constraint("Symmetric", 1, 3, 25, 3, -1, 1),
    Sketcher.Constraint("Symmetric", 5, 3, 29, 3, -1, 1),
    Sketcher.Constraint("Symmetric", 1, 3, 9, 3, -2),
    Sketcher.Constraint("Symmetric", 5, 3, 13, 3, -2),
    Sketcher.Constraint("Equal", 30, 0),
    Sketcher.Constraint("Radius", 1, Q("1 mm")),
    Sketcher.Constraint("DistanceX", 2, 2, 2, 1, Q("2.15 mm")),
    Sketcher.Constraint("DistanceX", -1, 1, 1, 3, Q("12.7 mm")),
    Sketcher.Constraint("DistanceY", -1, 1, 1, 3, Q("12.7 mm")),
])
sketch2.setExpression("Constraints[70]", "Params.sketch2_radius")
sketch2.setExpression("Constraints[71]", "Params.sketch2_width")
pocket1 = body.newObject("PartDesign::Pocket", "Pocket")
pocket1.Profile = sketch2
pocket1.Type = "ThroughAll"

doc.recompute()
